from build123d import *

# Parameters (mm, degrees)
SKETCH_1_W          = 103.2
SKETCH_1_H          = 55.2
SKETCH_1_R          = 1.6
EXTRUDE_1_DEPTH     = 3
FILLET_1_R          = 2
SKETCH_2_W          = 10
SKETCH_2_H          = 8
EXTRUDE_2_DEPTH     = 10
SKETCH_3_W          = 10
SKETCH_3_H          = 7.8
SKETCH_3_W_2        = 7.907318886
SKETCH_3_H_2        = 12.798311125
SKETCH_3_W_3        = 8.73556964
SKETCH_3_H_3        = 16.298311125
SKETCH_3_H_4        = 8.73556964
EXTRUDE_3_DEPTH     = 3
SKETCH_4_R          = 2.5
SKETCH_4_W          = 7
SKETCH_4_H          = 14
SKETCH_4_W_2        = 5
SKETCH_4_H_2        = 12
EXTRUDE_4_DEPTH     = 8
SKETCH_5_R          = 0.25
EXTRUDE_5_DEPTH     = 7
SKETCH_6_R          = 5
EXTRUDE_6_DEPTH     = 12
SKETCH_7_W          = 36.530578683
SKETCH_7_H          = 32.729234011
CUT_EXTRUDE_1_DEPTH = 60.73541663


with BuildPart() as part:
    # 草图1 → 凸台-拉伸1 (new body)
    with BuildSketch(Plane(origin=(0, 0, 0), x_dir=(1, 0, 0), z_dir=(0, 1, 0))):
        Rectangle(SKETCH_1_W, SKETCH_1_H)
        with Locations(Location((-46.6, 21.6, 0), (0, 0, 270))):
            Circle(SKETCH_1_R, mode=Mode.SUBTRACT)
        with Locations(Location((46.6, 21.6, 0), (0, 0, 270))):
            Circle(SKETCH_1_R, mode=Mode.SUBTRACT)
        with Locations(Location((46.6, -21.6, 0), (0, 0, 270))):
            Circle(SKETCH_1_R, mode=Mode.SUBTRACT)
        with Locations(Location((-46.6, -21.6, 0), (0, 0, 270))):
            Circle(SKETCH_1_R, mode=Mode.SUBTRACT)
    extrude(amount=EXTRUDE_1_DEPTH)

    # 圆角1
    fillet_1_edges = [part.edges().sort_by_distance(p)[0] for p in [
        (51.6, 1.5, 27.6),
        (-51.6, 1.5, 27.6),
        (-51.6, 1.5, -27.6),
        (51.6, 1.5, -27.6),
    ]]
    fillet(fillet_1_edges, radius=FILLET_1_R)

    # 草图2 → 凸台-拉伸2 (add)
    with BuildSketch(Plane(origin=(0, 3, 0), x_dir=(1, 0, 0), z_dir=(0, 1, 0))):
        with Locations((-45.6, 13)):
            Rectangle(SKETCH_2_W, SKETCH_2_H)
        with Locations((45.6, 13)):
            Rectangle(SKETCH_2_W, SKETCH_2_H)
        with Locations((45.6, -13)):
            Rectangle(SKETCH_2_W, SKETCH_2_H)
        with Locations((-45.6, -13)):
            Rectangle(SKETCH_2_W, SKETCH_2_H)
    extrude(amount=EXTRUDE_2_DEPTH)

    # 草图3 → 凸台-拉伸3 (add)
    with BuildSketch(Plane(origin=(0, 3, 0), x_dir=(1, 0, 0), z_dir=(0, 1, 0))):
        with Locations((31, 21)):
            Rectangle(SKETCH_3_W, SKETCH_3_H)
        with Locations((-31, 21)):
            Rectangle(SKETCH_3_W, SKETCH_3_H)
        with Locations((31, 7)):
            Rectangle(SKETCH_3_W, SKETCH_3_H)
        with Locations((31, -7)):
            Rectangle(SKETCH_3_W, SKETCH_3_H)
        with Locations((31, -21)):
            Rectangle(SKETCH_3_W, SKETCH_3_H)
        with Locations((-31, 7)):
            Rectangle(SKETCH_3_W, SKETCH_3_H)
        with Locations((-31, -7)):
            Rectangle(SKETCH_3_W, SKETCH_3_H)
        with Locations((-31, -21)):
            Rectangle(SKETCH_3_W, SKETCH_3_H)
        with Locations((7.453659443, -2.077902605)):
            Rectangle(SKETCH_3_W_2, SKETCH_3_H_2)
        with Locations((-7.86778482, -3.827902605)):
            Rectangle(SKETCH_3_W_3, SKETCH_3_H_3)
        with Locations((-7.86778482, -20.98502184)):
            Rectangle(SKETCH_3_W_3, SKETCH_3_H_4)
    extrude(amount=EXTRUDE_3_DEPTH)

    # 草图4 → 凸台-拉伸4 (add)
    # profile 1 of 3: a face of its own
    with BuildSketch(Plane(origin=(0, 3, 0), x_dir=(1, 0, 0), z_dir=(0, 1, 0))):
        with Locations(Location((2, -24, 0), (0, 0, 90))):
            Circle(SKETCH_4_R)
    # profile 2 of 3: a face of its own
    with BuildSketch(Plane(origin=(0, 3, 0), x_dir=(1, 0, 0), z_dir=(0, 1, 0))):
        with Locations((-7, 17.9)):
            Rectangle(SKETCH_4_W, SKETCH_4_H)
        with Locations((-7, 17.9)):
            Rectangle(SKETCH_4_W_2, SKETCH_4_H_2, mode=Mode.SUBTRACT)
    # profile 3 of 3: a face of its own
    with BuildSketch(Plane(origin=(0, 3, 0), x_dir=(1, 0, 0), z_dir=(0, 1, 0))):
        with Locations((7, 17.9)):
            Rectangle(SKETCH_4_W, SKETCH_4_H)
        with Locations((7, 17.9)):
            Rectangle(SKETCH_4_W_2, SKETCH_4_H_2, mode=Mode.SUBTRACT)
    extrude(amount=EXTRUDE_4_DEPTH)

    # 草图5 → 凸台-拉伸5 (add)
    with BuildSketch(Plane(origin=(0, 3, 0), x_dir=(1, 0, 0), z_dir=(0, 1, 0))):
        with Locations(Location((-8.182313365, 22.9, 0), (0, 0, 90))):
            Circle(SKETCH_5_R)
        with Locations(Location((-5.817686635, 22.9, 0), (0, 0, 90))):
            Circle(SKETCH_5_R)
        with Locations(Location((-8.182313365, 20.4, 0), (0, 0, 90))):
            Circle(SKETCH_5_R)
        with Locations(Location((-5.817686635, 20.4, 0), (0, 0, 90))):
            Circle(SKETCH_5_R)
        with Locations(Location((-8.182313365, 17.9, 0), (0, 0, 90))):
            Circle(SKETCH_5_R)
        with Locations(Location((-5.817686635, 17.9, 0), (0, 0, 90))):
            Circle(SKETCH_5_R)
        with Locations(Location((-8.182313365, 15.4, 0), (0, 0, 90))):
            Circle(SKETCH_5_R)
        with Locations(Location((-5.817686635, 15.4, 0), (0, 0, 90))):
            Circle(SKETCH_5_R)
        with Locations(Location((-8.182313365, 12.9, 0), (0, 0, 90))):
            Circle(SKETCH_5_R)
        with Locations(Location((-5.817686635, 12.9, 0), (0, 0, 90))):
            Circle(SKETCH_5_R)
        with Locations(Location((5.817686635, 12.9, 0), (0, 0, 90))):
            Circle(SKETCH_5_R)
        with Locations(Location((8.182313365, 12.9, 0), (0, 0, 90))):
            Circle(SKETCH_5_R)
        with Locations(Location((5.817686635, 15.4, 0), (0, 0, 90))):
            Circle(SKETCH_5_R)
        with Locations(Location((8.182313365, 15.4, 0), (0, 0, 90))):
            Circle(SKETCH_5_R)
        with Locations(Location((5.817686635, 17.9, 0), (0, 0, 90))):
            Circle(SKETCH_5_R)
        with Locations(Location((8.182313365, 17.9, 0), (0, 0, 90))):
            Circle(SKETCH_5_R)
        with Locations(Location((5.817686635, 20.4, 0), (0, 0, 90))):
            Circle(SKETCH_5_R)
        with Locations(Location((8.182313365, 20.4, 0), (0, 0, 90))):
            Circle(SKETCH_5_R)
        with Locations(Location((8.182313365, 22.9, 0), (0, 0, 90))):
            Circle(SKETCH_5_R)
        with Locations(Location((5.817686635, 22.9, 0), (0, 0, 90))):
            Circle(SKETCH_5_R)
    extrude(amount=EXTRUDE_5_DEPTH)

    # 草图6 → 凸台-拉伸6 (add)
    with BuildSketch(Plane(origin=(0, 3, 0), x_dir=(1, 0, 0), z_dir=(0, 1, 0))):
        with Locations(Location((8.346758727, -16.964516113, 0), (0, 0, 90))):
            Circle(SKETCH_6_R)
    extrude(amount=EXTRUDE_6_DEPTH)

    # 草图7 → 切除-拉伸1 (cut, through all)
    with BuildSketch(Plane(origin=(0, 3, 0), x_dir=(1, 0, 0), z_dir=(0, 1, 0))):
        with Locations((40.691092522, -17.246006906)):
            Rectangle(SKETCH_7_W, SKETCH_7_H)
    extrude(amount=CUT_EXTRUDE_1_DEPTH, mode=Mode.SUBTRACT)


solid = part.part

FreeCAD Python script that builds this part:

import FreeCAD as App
import Part
import Sketcher

V = App.Vector
Q = App.Units.Quantity


def edges_at(feature, points):
    """Names of the edges that pass closest to the given points."""
    edges = feature.Shape.Edges
    near = lambda p: min(range(len(edges)), key=lambda i: edges[i].distToShape(Part.Vertex(*p))[0])
    return sorted({f"Edge{near(p) + 1}" for p in points})


def add_polygon(sketch, points):
    """Adds a closed chain of lines whose ends are joined by coincident constraints."""
    first, n = sketch.GeometryCount, len(points)
    for a, b in zip(points, points[1:] + points[:1]):
        sketch.addGeometry(Part.LineSegment(App.Vector(*a, 0), App.Vector(*b, 0)), False)
    for i in range(n):
        sketch.addConstraint(Sketcher.Constraint("Coincident", first + i, 2, first + (i + 1) % n, 1))

doc = App.newDocument("Part")
body = doc.addObject("PartDesign::Body", "Body")

sketch1 = body.newObject("Sketcher::SketchObject", "Sketch")
sketch1.AttachmentSupport = (doc.getObject("XZ_Plane"), [""])
sketch1.MapMode = "FlatFace"
add_polygon(sketch1, [(-51.6, -27.6), (-51.6, 27.6), (51.6, 27.6), (51.6, -27.6)])
sketch1.addGeometry(Part.Circle(V(-46.6, 21.6, 0), V(0, 0, 1), 1.6), False)
sketch1.addGeometry(Part.Circle(V(46.6, 21.6, 0), V(0, 0, 1), 1.6), False)
sketch1.addGeometry(Part.Circle(V(-46.6, -21.6, 0), V(0, 0, 1), 1.6), False)
sketch1.addGeometry(Part.Circle(V(46.6, -21.6, 0), V(0, 0, 1), 1.6), False)
sketch1.addConstraint([
    Sketcher.Constraint("Vertical", 0),
    Sketcher.Constraint("Horizontal", 1),
    Sketcher.Constraint("Vertical", 2),
    Sketcher.Constraint("Horizontal", 3),
    Sketcher.Constraint("Equal", 4, 5),
    Sketcher.Constraint("Equal", 5, 6),
    Sketcher.Constraint("Equal", 6, 7),
    Sketcher.Constraint("Symmetric", 5, 3, 6, 3, -1, 1),
    Sketcher.Constraint("Symmetric", 4, 3, 7, 3, -1, 1),
    Sketcher.Constraint("Symmetric", 0, 2, 2, 2, -1, 1),
    Sketcher.Constraint("Symmetric", 4, 3, 5, 3, -2),
    Sketcher.Constraint("Diameter", 4, Q("3.2 mm")),
    Sketcher.Constraint("DistanceX", 1, 1, 1, 2, Q("103.2 mm")),
    Sketcher.Constraint("DistanceY", 0, 1, 0, 2, Q("55.2 mm")),
    Sketcher.Constraint("DistanceX", 0, 2, 4, 3, Q("5 mm")),
    Sketcher.Constraint("DistanceY", 4, 3, 0, 2, Q("6 mm")),
])
pad1 = body.newObject("PartDesign::Pad", "Pad")
pad1.Profile = sketch1
pad1.Length = 3
pad1.Reversed = True
doc.recompute()

fillet = body.newObject("PartDesign::Fillet", "Fillet")
fillet.Base = (pad1, edges_at(pad1, [
    (51.6, 1.5, 27.6),
    (-51.6, 1.5, 27.6),
    (-51.6, 1.5, -27.6),
    (51.6, 1.5, -27.6),
]))
fillet.Radius = 2

sketch2 = body.newObject("Sketcher::SketchObject", "Sketch001")
sketch2.AttachmentSupport = (doc.getObject("XZ_Plane"), [""])
sketch2.MapMode = "FlatFace"
sketch2.AttachmentOffset = App.Placement(V(0, 0, -3), App.Rotation())
add_polygon(sketch2, [(-51, -17), (-51, -9), (-41, -9), (-41, -17)])
add_polygon(sketch2, [(41, -17), (41, -9), (51, -9), (51, -17)])
add_polygon(sketch2, [(41, 9), (41, 17), (51, 17), (51, 9)])
add_polygon(sketch2, [(-51, 9), (-51, 17), (-41, 17), (-41, 9)])
sketch2.addConstraint([
    Sketcher.Constraint("Vertical", 0),
    Sketcher.Constraint("Horizontal", 1),
    Sketcher.Constraint("Vertical", 2),
    Sketcher.Constraint("Horizontal", 3),
    Sketcher.Constraint("Vertical", 4),
    Sketcher.Constraint("Horizontal", 5),
    Sketcher.Constraint("Vertical", 6),
    Sketcher.Constraint("Horizontal", 7),
    Sketcher.Constraint("Vertical", 8),
    Sketcher.Constraint("Horizontal", 9),
    Sketcher.Constraint("Vertical", 10),
    Sketcher.Constraint("Horizontal", 11),
    Sketcher.Constraint("Vertical", 12),
    Sketcher.Constraint("Horizontal", 13),
    Sketcher.Constraint("Vertical", 14),
    Sketcher.Constraint("Horizontal", 15),
    Sketcher.Constraint("Symmetric", 2, 2, 8, 2, -1, 1),
    Sketcher.Constraint("Symmetric", 0, 2, 10, 2, -1, 1),
    Sketcher.Constraint("Symmetric", 6, 2, 12, 2, -1, 1),
    Sketcher.Constraint("Symmetric", 4, 2, 14, 2, -1, 1),
    Sketcher.Constraint("Symmetric", 1, 2, 4, 2, -2),
    Sketcher.Constraint("Symmetric", 3, 2, 6, 2, -2),
    Sketcher.Constraint("DistanceX", 1, 1, 1, 2, Q("10 mm")),
    Sketcher.Constraint("DistanceY", 0, 1, 0, 2, Q("8 mm")),
    Sketcher.Constraint("DistanceY", 0, 2, -1, 1, Q("9 mm")),
    Sketcher.Constraint("DistanceX", 0, 2, -1, 1, Q("50.6 mm")),
])
pad2 = body.newObject("PartDesign::Pad", "Pad001")
pad2.Profile = sketch2
pad2.Length = 10
pad2.Reversed = True

sketch3 = body.newObject("Sketcher::SketchObject", "Sketch002")
sketch3.AttachmentSupport = (doc.getObject("XZ_Plane"), [""])
sketch3.MapMode = "FlatFace"
sketch3.AttachmentOffset = App.Placement(V(0, 0, -3), App.Rotation())
add_polygon(sketch3, [(26, -25), (26, -17), (36, -17), (36, -25)])
add_polygon(sketch3, [(-36, -25), (-36, -17), (-26, -17), (-26, -25)])
add_polygon(sketch3, [(26, -11), (26, -3), (36, -3), (36, -11)])
add_polygon(sketch3, [(26, 3), (26, 11), (36, 11), (36, 3)])
add_polygon(sketch3, [(26, 17), (26, 25), (36, 25), (36, 17)])
add_polygon(sketch3, [(-36, -11), (-36, -3), (-26, -3), (-26, -11)])
add_polygon(sketch3, [(-36, 3), (-36, 11), (-26, 11), (-26, 3)])
add_polygon(sketch3, [(-36, 17), (-36, 25), (-26, 25), (-26, 17)])
add_polygon(sketch3, [(4, -4), (4, 8), (11, 8), (11, -4)])
add_polygon(sketch3, [(-12, -4), (-12, 12), (-4, 12), (-4, -4)])
add_polygon(sketch3, [(-12, 17), (-12, 25), (-4, 25), (-4, 17)])
sketch3.addConstraint([
    Sketcher.Constraint("Vertical", 0),
    Sketcher.Constraint("Horizontal", 1),
    Sketcher.Constraint("Vertical", 2),
    Sketcher.Constraint("Horizontal", 3),
    Sketcher.Constraint("Vertical", 4),
    Sketcher.Constraint("Horizontal", 5),
    Sketcher.Constraint("Vertical", 6),
    Sketcher.Constraint("Horizontal", 7),
    Sketcher.Constraint("Vertical", 8),
    Sketcher.Constraint("Horizontal", 9),
    Sketcher.Constraint("Vertical", 10),
    Sketcher.Constraint("Horizontal", 11),
    Sketcher.Constraint("Vertical", 12),
    Sketcher.Constraint("Horizontal", 13),
    Sketcher.Constraint("Vertical", 14),
    Sketcher.Constraint("Horizontal", 15),
    Sketcher.Constraint("Vertical", 16),
    Sketcher.Constraint("Horizontal", 17),
    Sketcher.Constraint("Vertical", 18),
    Sketcher.Constraint("Horizontal", 19),
    Sketcher.Constraint("Vertical", 20),
    Sketcher.Constraint("Horizontal", 21),
    Sketcher.Constraint("Vertical", 22),
    Sketcher.Constraint("Horizontal", 23),
    Sketcher.Constraint("Vertical", 24),
    Sketcher.Constraint("Horizontal", 25),
    Sketcher.Constraint("Vertical", 26),
    Sketcher.Constraint("Horizontal", 27),
    Sketcher.Constraint("Vertical", 28),
    Sketcher.Constraint("Horizontal", 29),
    Sketcher.Constraint("Vertical", 30),
    Sketcher.Constraint("Horizontal", 31),
    Sketcher.Constraint("Vertical", 32),
    Sketcher.Constraint("Horizontal", 33),
    Sketcher.Constraint("Vertical", 34),
    Sketcher.Constraint("Horizontal", 35),
    Sketcher.Constraint("Vertical", 36),
    Sketcher.Constraint("Horizontal", 37),
    Sketcher.Constraint("Vertical", 38),
    Sketcher.Constraint("Horizontal", 39),
    Sketcher.Constraint("Vertical", 40),
    Sketcher.Constraint("Horizontal", 41),
    Sketcher.Constraint("Vertical", 42),
    Sketcher.Constraint("Horizontal", 43),
    Sketcher.Constraint("Symmetric", 6, 2, 16, 2, -1, 1),
    Sketcher.Constraint("Symmetric", 4, 2, 18, 2, -1, 1),
    Sketcher.Constraint("Symmetric", 14, 2, 20, 2, -1, 1),
    Sketcher.Constraint("Symmetric", 12, 2, 22, 2, -1, 1),
    Sketcher.Constraint("Symmetric", 10, 2, 24, 2, -1, 1),
    Sketcher.Constraint("Symmetric", 8, 2, 26, 2, -1, 1),
    Sketcher.Constraint("Symmetric", 2, 2, 28, 2, -1, 1),
    Sketcher.Constraint("Symmetric", 0, 2, 30, 2, -1, 1),
    Sketcher.Constraint("Symmetric", 1, 2, 4, 2, -2),
    Sketcher.Constraint("Symmetric", 3, 2, 6, 2, -2),
    Sketcher.Constraint("Symmetric", 9, 2, 20, 2, -2),
    Sketcher.Constraint("Symmetric", 11, 2, 22, 2, -2),
    Sketcher.Constraint("Symmetric", 35, 2, 38, 2, -2),
    Sketcher.Constraint("Vertical", 3, 2, 8, 2),
    Sketcher.Constraint("Vertical", 2, 2, 9, 2),
    Sketcher.Constraint("Vertical", 39, 2, 40, 2),
    Sketcher.Constraint("Vertical", 38, 2, 41, 2),
    Sketcher.Constraint("Equal", 6, 8),
    Sketcher.Constraint("Equal", 43, 40),
    Sketcher.Constraint("DistanceX", 1, 1, 1, 2, Q("10 mm")),
    Sketcher.Constraint("DistanceY", 0, 1, 0, 2, Q("7.8 mm")),
    Sketcher.Constraint("DistanceX", -1, 1, 0, 2, Q("26 mm")),
    Sketcher.Constraint("DistanceY", 0, 2, 8, 2, Q("14 mm")),
    Sketcher.Constraint("DistanceY", 8, 2, 12, 2, Q("14 mm")),
    Sketcher.Constraint("DistanceX", 37, 2, 32, 2, Q("7 mm")),
    Sketcher.Constraint("DistanceY", 32, 2, 36, 2, Q("3.5 mm")),
    Sketcher.Constraint("DistanceX", 33, 1, 33, 2, Q("7.907319 mm")),
    Sketcher.Constraint("DistanceX", 37, 1, 37, 2, Q("8.73557 mm")),
    Sketcher.Constraint("DistanceY", 32, 1, 32, 2, Q("12.798311 mm")),
    Sketcher.Constraint("DistanceY", -1, 1, 32, 2, Q("8.477058 mm")),
    Sketcher.Constraint("DistanceY", 36, 2, 40, 2, Q("13.375748 mm")),
])
pad3 = body.newObject("PartDesign::Pad", "Pad002")
pad3.Profile = sketch3
pad3.Length = 3
pad3.Reversed = True

sketch4 = body.newObject("Sketcher::SketchObject", "Sketch003")
sketch4.AttachmentSupport = (doc.getObject("XZ_Plane"), [""])
sketch4.MapMode = "FlatFace"
sketch4.AttachmentOffset = App.Placement(V(0, 0, -3), App.Rotation())
sketch4.addGeometry(Part.Circle(V(2, 24, 0), V(0, 0, 1), 2.5), False)
add_polygon(sketch4, [(-10.5, -24.9), (-10.5, -10.9), (-3.5, -10.9), (-3.5, -24.9)])
add_polygon(sketch4, [(-4.5, -11.9), (-9.5, -11.9), (-9.5, -23.9), (-4.5, -23.9)])
add_polygon(sketch4, [(3.5, -24.9), (3.5, -10.9), (10.5, -10.9), (10.5, -24.9)])
add_polygon(sketch4, [(9.5, -11.9), (4.5, -11.9), (4.5, -23.9), (9.5, -23.9)])
sketch4.addConstraint([
    Sketcher.Constraint("Vertical", 1),
    Sketcher.Constraint("Horizontal", 2),
    Sketcher.Constraint("Vertical", 3),
    Sketcher.Constraint("Horizontal", 4),
    Sketcher.Constraint("Horizontal", 5),
    Sketcher.Constraint("Vertical", 6),
    Sketcher.Constraint("Horizontal", 7),
    Sketcher.Constraint("Vertical", 8),
    Sketcher.Constraint("Vertical", 9),
    Sketcher.Constraint("Horizontal", 10),
    Sketcher.Constraint("Vertical", 11),
    Sketcher.Constraint("Horizontal", 12),
    Sketcher.Constraint("Horizontal", 13),
    Sketcher.Constraint("Vertical", 14),
    Sketcher.Constraint("Horizontal", 15),
    Sketcher.Constraint("Vertical", 16),
    Sketcher.Constraint("Symmetric", 2, 2, 9, 2, -2),
    Sketcher.Constraint("Symmetric", 4, 2, 11, 2, -2),
    Sketcher.Constraint("Symmetric", 8, 2, 13, 2, -2),
    Sketcher.Constraint("Symmetric", 6, 2, 15, 2, -2),
    Sketcher.Constraint("Diameter", 0, Q("5 mm")),
    Sketcher.Constraint("DistanceX", 2, 1, 2, 2, Q("7 mm")),
    Sketcher.Constraint("DistanceX", 5, 2, 5, 1, Q("5 mm")),
    Sketcher.Constraint("DistanceY", 1, 1, 1, 2, Q("14 mm")),
    Sketcher.Constraint("DistanceY", 6, 2, 6, 1, Q("12 mm")),
    Sketcher.Constraint("DistanceX", -1, 1, 0, 3, Q("2 mm")),
    Sketcher.Constraint("DistanceY", -1, 1, 0, 3, Q("24 mm")),
    Sketcher.Constraint("DistanceX", 1, 2, 5, 2, Q("1 mm")),
    Sketcher.Constraint("DistanceY", 5, 2, 1, 2, Q("1 mm")),
    Sketcher.Constraint("DistanceX", 2, 2, 9, 2, Q("7 mm")),
    Sketcher.Constraint("DistanceY", 1, 2, -1, 1, Q("10.9 mm")),
])
pad4 = body.newObject("PartDesign::Pad", "Pad003")
pad4.Profile = sketch4
pad4.Length = 8
pad4.Reversed = True

sketch5 = body.newObject("Sketcher::SketchObject", "Sketch004")
sketch5.AttachmentSupport = (doc.getObject("XZ_Plane"), [""])
sketch5.MapMode = "FlatFace"
sketch5.AttachmentOffset = App.Placement(V(0, 0, -3), App.Rotation())
sketch5.addGeometry([
    Part.Circle(V(-8.18, -22.9, 0), V(0, 0, 1), 0.25),
    Part.Circle(V(-5.82, -22.9, 0), V(0, 0, 1), 0.25),
    Part.Circle(V(-8.18, -20.4, 0), V(0, 0, 1), 0.25),
    Part.Circle(V(-5.82, -20.4, 0), V(0, 0, 1), 0.25),
    Part.Circle(V(-8.18, -17.9, 0), V(0, 0, 1), 0.25),
    Part.Circle(V(-5.82, -17.9, 0), V(0, 0, 1), 0.25),
    Part.Circle(V(-8.18, -15.4, 0), V(0, 0, 1), 0.25),
    Part.Circle(V(-5.82, -15.4, 0), V(0, 0, 1), 0.25),
    Part.Circle(V(-8.18, -12.9, 0), V(0, 0, 1), 0.25),
    Part.Circle(V(-5.82, -12.9, 0), V(0, 0, 1), 0.25),
    Part.Circle(V(5.82, -12.9, 0), V(0, 0, 1), 0.25),
    Part.Circle(V(8.18, -12.9, 0), V(0, 0, 1), 0.25),
    Part.Circle(V(5.82, -15.4, 0), V(0, 0, 1), 0.25),
    Part.Circle(V(8.18, -15.4, 0), V(0, 0, 1), 0.25),
    Part.Circle(V(5.82, -17.9, 0), V(0, 0, 1), 0.25),
    Part.Circle(V(8.18, -17.9, 0), V(0, 0, 1), 0.25),
    Part.Circle(V(5.82, -20.4, 0), V(0, 0, 1), 0.25),
    Part.Circle(V(8.18, -20.4, 0), V(0, 0, 1), 0.25),
    Part.Circle(V(8.18, -22.9, 0), V(0, 0, 1), 0.25),
    Part.Circle(V(5.82, -22.9, 0), V(0, 0, 1), 0.25),
], False)
sketch5.addConstraint([
    Sketcher.Constraint("Equal", 0, 1),
    Sketcher.Constraint("Equal", 1, 2),
    Sketcher.Constraint("Equal", 2, 3),
    Sketcher.Constraint("Equal", 3, 4),
    Sketcher.Constraint("Equal", 4, 5),
    Sketcher.Constraint("Equal", 5, 6),
    Sketcher.Constraint("Equal", 6, 7),
    Sketcher.Constraint("Equal", 7, 8),
    Sketcher.Constraint("Equal", 8, 9),
    Sketcher.Constraint("Equal", 9, 10),
    Sketcher.Constraint("Equal", 10, 11),
    Sketcher.Constraint("Equal", 11, 12),
    Sketcher.Constraint("Equal", 12, 13),
    Sketcher.Constraint("Equal", 13, 14),
    Sketcher.Constraint("Equal", 14, 15),
    Sketcher.Constraint("Equal", 15, 16),
    Sketcher.Constraint("Equal", 16, 17),
    Sketcher.Constraint("Equal", 17, 18),
    Sketcher.Constraint("Equal", 18, 19),
    Sketcher.Constraint("Symmetric", 9, 3, 10, 3, -2),
    Sketcher.Constraint("Symmetric", 8, 3, 11, 3, -2),
    Sketcher.Constraint("Symmetric", 7, 3, 12, 3, -2),
    Sketcher.Constraint("Symmetric", 6, 3, 13, 3, -2),
    Sketcher.Constraint("Symmetric", 5, 3, 14, 3, -2),
    Sketcher.Constraint("Symmetric", 4, 3, 15, 3, -2),
    Sketcher.Constraint("Symmetric", 3, 3, 16, 3, -2),
    Sketcher.Constraint("Symmetric", 2, 3, 17, 3, -2),
    Sketcher.Constraint("Symmetric", 0, 3, 18, 3, -2),
    Sketcher.Constraint("Symmetric", 1, 3, 19, 3, -2),
    Sketcher.Constraint("Horizontal", 0, 3, 1, 3),
    Sketcher.Constraint("Horizontal", 2, 3, 3, 3),
    Sketcher.Constraint("Horizontal", 4, 3, 5, 3),
    Sketcher.Constraint("Horizontal", 6, 3, 7, 3),
    Sketcher.Constraint("Horizontal", 8, 3, 9, 3),
    Sketcher.Constraint("Vertical", 0, 3, 2, 3),
    Sketcher.Constraint("Vertical", 1, 3, 3, 3),
    Sketcher.Constraint("Vertical", 2, 3, 4, 3),
    Sketcher.Constraint("Vertical", 3, 3, 5, 3),
    Sketcher.Constraint("Vertical", 4, 3, 6, 3),
    Sketcher.Constraint("Vertical", 5, 3, 7, 3),
    Sketcher.Constraint("Vertical", 6, 3, 8, 3),
    Sketcher.Constraint("Vertical", 7, 3, 9, 3),
    Sketcher.Constraint("Diameter", 0, Q("0.5 mm")),
    Sketcher.Constraint("DistanceY", 0, 3, 4, 3, Q("5 mm")),
    Sketcher.Constraint("DistanceY", 2, 3, 6, 3, Q("5 mm")),
    Sketcher.Constraint("DistanceY", 4, 3, 8, 3, Q("5 mm")),
    Sketcher.Constraint("DistanceX", 8, 3, 10, 3, Q("14 mm")),
    Sketcher.Constraint("DistanceY", 0, 3, -1, 1, Q("22.9 mm")),
    Sketcher.Constraint("DistanceY", 2, 3, -1, 1, Q("20.4 mm")),
    Sketcher.Constraint("DistanceX", 0, 3, -1, 1, Q("8.182313 mm")),
])
pad5 = body.newObject("PartDesign::Pad", "Pad004")
pad5.Profile = sketch5
pad5.Length = 7
pad5.Reversed = True

sketch6 = body.newObject("Sketcher::SketchObject", "Sketch005")
sketch6.AttachmentSupport = (doc.getObject("XZ_Plane"), [""])
sketch6.MapMode = "FlatFace"
sketch6.AttachmentOffset = App.Placement(V(0, 0, -3), App.Rotation())
sketch6.addGeometry(Part.Circle(V(8, 17, 0), V(0, 0, 1), 5), False)
sketch6.addConstraint([
    Sketcher.Constraint("Diameter", 0, Q("10 mm")),
    Sketcher.Constraint("DistanceX", -1, 1, 0, 3, Q("8.346759 mm")),
    Sketcher.Constraint("DistanceY", -1, 1, 0, 3, Q("16.964516 mm")),
])
pad6 = body.newObject("PartDesign::Pad", "Pad005")
pad6.Profile = sketch6
pad6.Length = 12
pad6.Reversed = True

sketch7 = body.newObject("Sketcher::SketchObject", "Sketch006")
sketch7.AttachmentSupport = (doc.getObject("XZ_Plane"), [""])
sketch7.MapMode = "FlatFace"
sketch7.AttachmentOffset = App.Placement(V(0, 0, -3), App.Rotation())
add_polygon(sketch7, [(22, 1), (22, 34), (59, 34), (59, 1)])
sketch7.addConstraint([
    Sketcher.Constraint("Vertical", 0),
    Sketcher.Constraint("Horizontal", 1),
    Sketcher.Constraint("Vertical", 2),
    Sketcher.Constraint("Horizontal", 3),
    Sketcher.Constraint("DistanceX", 1, 1, 1, 2, Q("36.530579 mm")),
    Sketcher.Constraint("DistanceY", 0, 1, 0, 2, Q("32.729234 mm")),
    Sketcher.Constraint("DistanceX", -1, 1, 1, 2, Q("58.956382 mm")),
    Sketcher.Constraint("DistanceY", -1, 1, 2, 2, Q("0.88139 mm")),
])
pocket1 = body.newObject("PartDesign::Pocket", "Pocket")
pocket1.Profile = sketch7
pocket1.Type = "ThroughAll"

doc.recompute()
